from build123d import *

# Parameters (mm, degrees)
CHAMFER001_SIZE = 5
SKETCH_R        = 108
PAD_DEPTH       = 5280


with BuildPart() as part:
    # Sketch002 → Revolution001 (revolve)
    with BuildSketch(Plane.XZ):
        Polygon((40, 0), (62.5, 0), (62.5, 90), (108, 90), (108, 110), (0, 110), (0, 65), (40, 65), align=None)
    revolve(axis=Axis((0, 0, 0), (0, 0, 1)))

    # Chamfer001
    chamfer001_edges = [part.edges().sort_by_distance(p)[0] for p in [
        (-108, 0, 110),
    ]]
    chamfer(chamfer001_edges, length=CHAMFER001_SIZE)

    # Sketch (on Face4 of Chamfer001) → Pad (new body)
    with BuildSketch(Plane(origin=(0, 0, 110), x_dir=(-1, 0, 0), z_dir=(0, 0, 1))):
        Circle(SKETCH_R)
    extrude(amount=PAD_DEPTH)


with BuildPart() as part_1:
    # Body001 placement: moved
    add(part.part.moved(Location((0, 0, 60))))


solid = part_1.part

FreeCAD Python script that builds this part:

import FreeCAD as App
import Part
import Sketcher

V = App.Vector


def edges_at(feature, points):
    """Names of the edges that pass closest to the given points."""
    edges = feature.Shape.Edges
    near = lambda p: min(range(len(edges)), key=lambda i: edges[i].distToShape(Part.Vertex(*p))[0])
    return sorted({f"Edge{near(p) + 1}" for p in points})

doc = App.newDocument("Part")
params = doc.addObject("Spreadsheet::Sheet", "Params")
for row, (alias, value) in enumerate([
    ("sketch1_width", "108 mm"),
    ("sketch1_width2", "40 mm"),
    ("sketch1_height", "90 mm"),
    ("sketch1_height2", "20 mm"),
    ("sketch1_height3", "45 mm"),
    ("revolution_angle", "360 deg"),
    ("chamfer_size", "5 mm"),
    ("sketch2_diameter", "216 mm"),
    ("pad1_length", "5280 mm"),
], start=1):
    params.set(f"A{row}", alias)
    params.set(f"B{row}", "=" + value)
    params.setAlias(f"B{row}", alias)

body = doc.addObject("PartDesign::Body", "Body")

# Sketch on XZ plane
sketch1 = body.newObject("Sketcher::SketchObject", "Sketch")
sketch1.AttachmentSupport = (doc.getObject("XZ_Plane"), [""])
sketch1.MapMode = "FlatFace"
sketch1.addGeometry([
    Part.LineSegment(V(40, 0, 0), V(62, 0, 0)),  # 0
    Part.LineSegment(V(62, 0, 0), V(62, 90, 0)),  # 1
    Part.LineSegment(V(62, 90, 0), V(108, 90, 0)),  # 2
    Part.LineSegment(V(108, 90, 0), V(108, 110, 0)),  # 3
    Part.LineSegment(V(108, 110, 0), V(0, 110, 0)),  # 4
    Part.LineSegment(V(0, 110, 0), V(0, 65, 0)),  # 5
    Part.LineSegment(V(0, 65, 0), V(40, 65, 0)),  # 6
    Part.LineSegment(V(40, 65, 0), V(40, 0, 0)),  # 7
], False)
sketch1.addConstraint([
    Sketcher.Constraint("Coincident", 0, 2, 1, 1),
    Sketcher.Constraint("Coincident", 1, 2, 2, 1),
    Sketcher.Constraint("Coincident", 2, 2, 3, 1),
    Sketcher.Constraint("Coincident", 3, 2, 4, 1),
    Sketcher.Constraint("Coincident", 4, 2, 5, 1),
    Sketcher.Constraint("Coincident", 5, 2, 6, 1),
    Sketcher.Constraint("Coincident", 6, 2, 7, 1),
    Sketcher.Constraint("Coincident", 7, 2, 0, 1),
    Sketcher.Constraint("Horizontal", 0),
    Sketcher.Constraint("Vertical", 1),
    Sketcher.Constraint("Horizontal", 2),
    Sketcher.Constraint("Vertical", 3),
    Sketcher.Constraint("Horizontal", 4),
    Sketcher.Constraint("Vertical", 5),
    Sketcher.Constraint("Horizontal", 6),
    Sketcher.Constraint("Vertical", 7),
    Sketcher.Constraint("PointOnObject", 0, 2, -1),
    Sketcher.Constraint("PointOnObject", 4, 2, -2),
    Sketcher.Constraint("DistanceX", 4, 2, 4, 1, 108.0),
    Sketcher.Constraint("DistanceX", 6, 1, 6, 2, 40.0),
    Sketcher.Constraint("DistanceY", 1, 1, 1, 2, 90.0),
    Sketcher.Constraint("DistanceY", 3, 1, 3, 2, 20.0),
    Sketcher.Constraint("DistanceY", 5, 2, 5, 1, 45.0),
    Sketcher.Constraint("DistanceX", 0, 1, 0, 2, 22.5),
])
sketch1.setExpression("Constraints[18]", "Params.sketch1_width")
sketch1.setExpression("Constraints[19]", "Params.sketch1_width2")
sketch1.setExpression("Constraints[20]", "Params.sketch1_height")
sketch1.setExpression("Constraints[21]", "Params.sketch1_height2")
sketch1.setExpression("Constraints[22]", "Params.sketch1_height3")
revolution = body.newObject("PartDesign::Revolution", "Revolution")
revolution.Profile = sketch1
revolution.ReferenceAxis = (sketch1, ["V_Axis"])
revolution.setExpression("Angle", "Params.revolution_angle")
doc.recompute()

chamfer = body.newObject("PartDesign::Chamfer", "Chamfer")
chamfer.Base = (revolution, edges_at(revolution, [(-108, 0, 110)]))
chamfer.setExpression("Size", "Params.chamfer_size")

# Sketch on XY plane
sketch2 = body.newObject("Sketcher::SketchObject", "Sketch001")
sketch2.AttachmentSupport = (doc.getObject("XY_Plane"), [""])
sketch2.MapMode = "FlatFace"
sketch2.AttachmentOffset = App.Placement(V(0, 0, 110), App.Rotation())
sketch2.addGeometry(Part.Circle(V(0, 0, 0), V(0, 0, 1), 108), False)
sketch2.addConstraint([
    Sketcher.Constraint("Coincident", 0, 3, -1, 1),
    Sketcher.Constraint("Diameter", 0, 216.0),
])
sketch2.setExpression("Constraints[1]", "Params.sketch2_diameter")
pad1 = body.newObject("PartDesign::Pad", "Pad")
pad1.Profile = sketch2
pad1.setExpression("Length", "Params.pad1_length")
body2 = doc.addObject("PartDesign::Body", "Body001")
doc.recompute()

body.Placement = App.Placement(V(0, 0, 60), App.Rotation(V(0, 0, 1), 0))
boolean = body2.newObject("PartDesign::Boolean", "Boolean")
boolean.Type = "Fuse"
boolean.addObjects([body])

doc.recompute()
